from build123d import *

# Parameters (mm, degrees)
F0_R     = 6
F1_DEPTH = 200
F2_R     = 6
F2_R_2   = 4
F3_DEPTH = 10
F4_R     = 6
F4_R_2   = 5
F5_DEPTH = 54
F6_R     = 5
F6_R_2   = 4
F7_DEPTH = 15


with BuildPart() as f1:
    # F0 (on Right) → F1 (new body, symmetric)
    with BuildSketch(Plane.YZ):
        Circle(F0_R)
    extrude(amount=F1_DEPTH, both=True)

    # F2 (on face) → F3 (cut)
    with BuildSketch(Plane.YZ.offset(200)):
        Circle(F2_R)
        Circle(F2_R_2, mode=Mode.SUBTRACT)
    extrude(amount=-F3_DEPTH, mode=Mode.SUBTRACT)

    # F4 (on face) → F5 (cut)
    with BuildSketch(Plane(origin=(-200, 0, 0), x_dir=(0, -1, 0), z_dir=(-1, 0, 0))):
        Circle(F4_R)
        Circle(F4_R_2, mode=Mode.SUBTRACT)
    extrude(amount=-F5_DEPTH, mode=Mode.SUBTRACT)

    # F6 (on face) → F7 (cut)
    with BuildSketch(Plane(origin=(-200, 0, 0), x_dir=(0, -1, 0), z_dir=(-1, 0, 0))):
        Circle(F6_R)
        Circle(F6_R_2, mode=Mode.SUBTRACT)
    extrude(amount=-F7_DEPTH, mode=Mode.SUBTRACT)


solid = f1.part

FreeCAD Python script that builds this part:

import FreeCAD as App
import Part
import Sketcher
from FreeCAD import Vector
Q = App.Units.Quantity

doc = App.newDocument("Part")
body = doc.addObject("PartDesign::Body", "Body")

# Sketch on YZ plane
sketch1 = doc.addObject("Sketcher::SketchObject", "Sketch")
body.addObject(sketch1)
sketch1.AttachmentSupport = (doc.YZ_Plane, [""])
sketch1.MapMode = "FlatFace"
sketch1.addGeometry(Part.Circle(Vector(0, 0, 0), Vector(0, 0, 1), 6), False)
sketch1.addConstraint([
    Sketcher.Constraint("Coincident", 0, 3, -1, 1),
    Sketcher.Constraint("Diameter", 0, Q("12 mm")),
])
pad1 = doc.addObject("PartDesign::Pad", "Pad")
body.addObject(pad1)
pad1.Profile = sketch1
pad1.Length = 400
pad1.Midplane = True

# Sketch on YZ plane
sketch2 = doc.addObject("Sketcher::SketchObject", "Sketch001")
body.addObject(sketch2)
sketch2.AttachmentSupport = (doc.YZ_Plane, [""])
sketch2.MapMode = "FlatFace"
sketch2.AttachmentOffset = App.Placement(Vector(0, 0, 200), App.Rotation())
sketch2.addGeometry([
    Part.Circle(Vector(0, 0, 0), Vector(0, 0, 1), 6),
    Part.Circle(Vector(0, 0, 0), Vector(0, 0, 1), 4),
], False)
sketch2.addConstraint([
    Sketcher.Constraint("Coincident", 0, 3, -1, 1),
    Sketcher.Constraint("Coincident", 1, 3, -1, 1),
    Sketcher.Constraint("Diameter", 0, Q("12 mm")),
    Sketcher.Constraint("Diameter", 1, Q("8 mm")),
])
pocket1 = doc.addObject("PartDesign::Pocket", "Pocket")
body.addObject(pocket1)
pocket1.Profile = sketch2
pocket1.Length = 10

# Sketch on YZ plane
sketch3 = doc.addObject("Sketcher::SketchObject", "Sketch002")
body.addObject(sketch3)
sketch3.AttachmentSupport = (doc.YZ_Plane, [""])
sketch3.MapMode = "FlatFace"
sketch3.AttachmentOffset = App.Placement(Vector(0, 0, -200), App.Rotation())
sketch3.addGeometry([
    Part.Circle(Vector(0, 0, 0), Vector(0, 0, 1), 6),
    Part.Circle(Vector(0, 0, 0), Vector(0, 0, 1), 5),
], False)
sketch3.addConstraint([
    Sketcher.Constraint("Coincident", 0, 3, -1, 1),
    Sketcher.Constraint("Coincident", 1, 3, -1, 1),
    Sketcher.Constraint("Diameter", 0, Q("12 mm")),
    Sketcher.Constraint("Diameter", 1, Q("10 mm")),
])
pocket2 = doc.addObject("PartDesign::Pocket", "Pocket001")
body.addObject(pocket2)
pocket2.Profile = sketch3
pocket2.Length = 54
pocket2.Reversed = True

# Sketch on YZ plane
sketch4 = doc.addObject("Sketcher::SketchObject", "Sketch003")
body.addObject(sketch4)
sketch4.AttachmentSupport = (doc.YZ_Plane, [""])
sketch4.MapMode = "FlatFace"
sketch4.AttachmentOffset = App.Placement(Vector(0, 0, -200), App.Rotation())
sketch4.addGeometry([
    Part.Circle(Vector(0, 0, 0), Vector(0, 0, 1), 5),
    Part.Circle(Vector(0, 0, 0), Vector(0, 0, 1), 4),
], False)
sketch4.addConstraint([
    Sketcher.Constraint("Coincident", 0, 3, -1, 1),
    Sketcher.Constraint("Coincident", 1, 3, -1, 1),
    Sketcher.Constraint("Diameter", 0, Q("10 mm")),
    Sketcher.Constraint("Diameter", 1, Q("8 mm")),
])
pocket3 = doc.addObject("PartDesign::Pocket", "Pocket002")
body.addObject(pocket3)
pocket3.Profile = sketch4
pocket3.Length = 15
pocket3.Reversed = True

doc.recompute()
